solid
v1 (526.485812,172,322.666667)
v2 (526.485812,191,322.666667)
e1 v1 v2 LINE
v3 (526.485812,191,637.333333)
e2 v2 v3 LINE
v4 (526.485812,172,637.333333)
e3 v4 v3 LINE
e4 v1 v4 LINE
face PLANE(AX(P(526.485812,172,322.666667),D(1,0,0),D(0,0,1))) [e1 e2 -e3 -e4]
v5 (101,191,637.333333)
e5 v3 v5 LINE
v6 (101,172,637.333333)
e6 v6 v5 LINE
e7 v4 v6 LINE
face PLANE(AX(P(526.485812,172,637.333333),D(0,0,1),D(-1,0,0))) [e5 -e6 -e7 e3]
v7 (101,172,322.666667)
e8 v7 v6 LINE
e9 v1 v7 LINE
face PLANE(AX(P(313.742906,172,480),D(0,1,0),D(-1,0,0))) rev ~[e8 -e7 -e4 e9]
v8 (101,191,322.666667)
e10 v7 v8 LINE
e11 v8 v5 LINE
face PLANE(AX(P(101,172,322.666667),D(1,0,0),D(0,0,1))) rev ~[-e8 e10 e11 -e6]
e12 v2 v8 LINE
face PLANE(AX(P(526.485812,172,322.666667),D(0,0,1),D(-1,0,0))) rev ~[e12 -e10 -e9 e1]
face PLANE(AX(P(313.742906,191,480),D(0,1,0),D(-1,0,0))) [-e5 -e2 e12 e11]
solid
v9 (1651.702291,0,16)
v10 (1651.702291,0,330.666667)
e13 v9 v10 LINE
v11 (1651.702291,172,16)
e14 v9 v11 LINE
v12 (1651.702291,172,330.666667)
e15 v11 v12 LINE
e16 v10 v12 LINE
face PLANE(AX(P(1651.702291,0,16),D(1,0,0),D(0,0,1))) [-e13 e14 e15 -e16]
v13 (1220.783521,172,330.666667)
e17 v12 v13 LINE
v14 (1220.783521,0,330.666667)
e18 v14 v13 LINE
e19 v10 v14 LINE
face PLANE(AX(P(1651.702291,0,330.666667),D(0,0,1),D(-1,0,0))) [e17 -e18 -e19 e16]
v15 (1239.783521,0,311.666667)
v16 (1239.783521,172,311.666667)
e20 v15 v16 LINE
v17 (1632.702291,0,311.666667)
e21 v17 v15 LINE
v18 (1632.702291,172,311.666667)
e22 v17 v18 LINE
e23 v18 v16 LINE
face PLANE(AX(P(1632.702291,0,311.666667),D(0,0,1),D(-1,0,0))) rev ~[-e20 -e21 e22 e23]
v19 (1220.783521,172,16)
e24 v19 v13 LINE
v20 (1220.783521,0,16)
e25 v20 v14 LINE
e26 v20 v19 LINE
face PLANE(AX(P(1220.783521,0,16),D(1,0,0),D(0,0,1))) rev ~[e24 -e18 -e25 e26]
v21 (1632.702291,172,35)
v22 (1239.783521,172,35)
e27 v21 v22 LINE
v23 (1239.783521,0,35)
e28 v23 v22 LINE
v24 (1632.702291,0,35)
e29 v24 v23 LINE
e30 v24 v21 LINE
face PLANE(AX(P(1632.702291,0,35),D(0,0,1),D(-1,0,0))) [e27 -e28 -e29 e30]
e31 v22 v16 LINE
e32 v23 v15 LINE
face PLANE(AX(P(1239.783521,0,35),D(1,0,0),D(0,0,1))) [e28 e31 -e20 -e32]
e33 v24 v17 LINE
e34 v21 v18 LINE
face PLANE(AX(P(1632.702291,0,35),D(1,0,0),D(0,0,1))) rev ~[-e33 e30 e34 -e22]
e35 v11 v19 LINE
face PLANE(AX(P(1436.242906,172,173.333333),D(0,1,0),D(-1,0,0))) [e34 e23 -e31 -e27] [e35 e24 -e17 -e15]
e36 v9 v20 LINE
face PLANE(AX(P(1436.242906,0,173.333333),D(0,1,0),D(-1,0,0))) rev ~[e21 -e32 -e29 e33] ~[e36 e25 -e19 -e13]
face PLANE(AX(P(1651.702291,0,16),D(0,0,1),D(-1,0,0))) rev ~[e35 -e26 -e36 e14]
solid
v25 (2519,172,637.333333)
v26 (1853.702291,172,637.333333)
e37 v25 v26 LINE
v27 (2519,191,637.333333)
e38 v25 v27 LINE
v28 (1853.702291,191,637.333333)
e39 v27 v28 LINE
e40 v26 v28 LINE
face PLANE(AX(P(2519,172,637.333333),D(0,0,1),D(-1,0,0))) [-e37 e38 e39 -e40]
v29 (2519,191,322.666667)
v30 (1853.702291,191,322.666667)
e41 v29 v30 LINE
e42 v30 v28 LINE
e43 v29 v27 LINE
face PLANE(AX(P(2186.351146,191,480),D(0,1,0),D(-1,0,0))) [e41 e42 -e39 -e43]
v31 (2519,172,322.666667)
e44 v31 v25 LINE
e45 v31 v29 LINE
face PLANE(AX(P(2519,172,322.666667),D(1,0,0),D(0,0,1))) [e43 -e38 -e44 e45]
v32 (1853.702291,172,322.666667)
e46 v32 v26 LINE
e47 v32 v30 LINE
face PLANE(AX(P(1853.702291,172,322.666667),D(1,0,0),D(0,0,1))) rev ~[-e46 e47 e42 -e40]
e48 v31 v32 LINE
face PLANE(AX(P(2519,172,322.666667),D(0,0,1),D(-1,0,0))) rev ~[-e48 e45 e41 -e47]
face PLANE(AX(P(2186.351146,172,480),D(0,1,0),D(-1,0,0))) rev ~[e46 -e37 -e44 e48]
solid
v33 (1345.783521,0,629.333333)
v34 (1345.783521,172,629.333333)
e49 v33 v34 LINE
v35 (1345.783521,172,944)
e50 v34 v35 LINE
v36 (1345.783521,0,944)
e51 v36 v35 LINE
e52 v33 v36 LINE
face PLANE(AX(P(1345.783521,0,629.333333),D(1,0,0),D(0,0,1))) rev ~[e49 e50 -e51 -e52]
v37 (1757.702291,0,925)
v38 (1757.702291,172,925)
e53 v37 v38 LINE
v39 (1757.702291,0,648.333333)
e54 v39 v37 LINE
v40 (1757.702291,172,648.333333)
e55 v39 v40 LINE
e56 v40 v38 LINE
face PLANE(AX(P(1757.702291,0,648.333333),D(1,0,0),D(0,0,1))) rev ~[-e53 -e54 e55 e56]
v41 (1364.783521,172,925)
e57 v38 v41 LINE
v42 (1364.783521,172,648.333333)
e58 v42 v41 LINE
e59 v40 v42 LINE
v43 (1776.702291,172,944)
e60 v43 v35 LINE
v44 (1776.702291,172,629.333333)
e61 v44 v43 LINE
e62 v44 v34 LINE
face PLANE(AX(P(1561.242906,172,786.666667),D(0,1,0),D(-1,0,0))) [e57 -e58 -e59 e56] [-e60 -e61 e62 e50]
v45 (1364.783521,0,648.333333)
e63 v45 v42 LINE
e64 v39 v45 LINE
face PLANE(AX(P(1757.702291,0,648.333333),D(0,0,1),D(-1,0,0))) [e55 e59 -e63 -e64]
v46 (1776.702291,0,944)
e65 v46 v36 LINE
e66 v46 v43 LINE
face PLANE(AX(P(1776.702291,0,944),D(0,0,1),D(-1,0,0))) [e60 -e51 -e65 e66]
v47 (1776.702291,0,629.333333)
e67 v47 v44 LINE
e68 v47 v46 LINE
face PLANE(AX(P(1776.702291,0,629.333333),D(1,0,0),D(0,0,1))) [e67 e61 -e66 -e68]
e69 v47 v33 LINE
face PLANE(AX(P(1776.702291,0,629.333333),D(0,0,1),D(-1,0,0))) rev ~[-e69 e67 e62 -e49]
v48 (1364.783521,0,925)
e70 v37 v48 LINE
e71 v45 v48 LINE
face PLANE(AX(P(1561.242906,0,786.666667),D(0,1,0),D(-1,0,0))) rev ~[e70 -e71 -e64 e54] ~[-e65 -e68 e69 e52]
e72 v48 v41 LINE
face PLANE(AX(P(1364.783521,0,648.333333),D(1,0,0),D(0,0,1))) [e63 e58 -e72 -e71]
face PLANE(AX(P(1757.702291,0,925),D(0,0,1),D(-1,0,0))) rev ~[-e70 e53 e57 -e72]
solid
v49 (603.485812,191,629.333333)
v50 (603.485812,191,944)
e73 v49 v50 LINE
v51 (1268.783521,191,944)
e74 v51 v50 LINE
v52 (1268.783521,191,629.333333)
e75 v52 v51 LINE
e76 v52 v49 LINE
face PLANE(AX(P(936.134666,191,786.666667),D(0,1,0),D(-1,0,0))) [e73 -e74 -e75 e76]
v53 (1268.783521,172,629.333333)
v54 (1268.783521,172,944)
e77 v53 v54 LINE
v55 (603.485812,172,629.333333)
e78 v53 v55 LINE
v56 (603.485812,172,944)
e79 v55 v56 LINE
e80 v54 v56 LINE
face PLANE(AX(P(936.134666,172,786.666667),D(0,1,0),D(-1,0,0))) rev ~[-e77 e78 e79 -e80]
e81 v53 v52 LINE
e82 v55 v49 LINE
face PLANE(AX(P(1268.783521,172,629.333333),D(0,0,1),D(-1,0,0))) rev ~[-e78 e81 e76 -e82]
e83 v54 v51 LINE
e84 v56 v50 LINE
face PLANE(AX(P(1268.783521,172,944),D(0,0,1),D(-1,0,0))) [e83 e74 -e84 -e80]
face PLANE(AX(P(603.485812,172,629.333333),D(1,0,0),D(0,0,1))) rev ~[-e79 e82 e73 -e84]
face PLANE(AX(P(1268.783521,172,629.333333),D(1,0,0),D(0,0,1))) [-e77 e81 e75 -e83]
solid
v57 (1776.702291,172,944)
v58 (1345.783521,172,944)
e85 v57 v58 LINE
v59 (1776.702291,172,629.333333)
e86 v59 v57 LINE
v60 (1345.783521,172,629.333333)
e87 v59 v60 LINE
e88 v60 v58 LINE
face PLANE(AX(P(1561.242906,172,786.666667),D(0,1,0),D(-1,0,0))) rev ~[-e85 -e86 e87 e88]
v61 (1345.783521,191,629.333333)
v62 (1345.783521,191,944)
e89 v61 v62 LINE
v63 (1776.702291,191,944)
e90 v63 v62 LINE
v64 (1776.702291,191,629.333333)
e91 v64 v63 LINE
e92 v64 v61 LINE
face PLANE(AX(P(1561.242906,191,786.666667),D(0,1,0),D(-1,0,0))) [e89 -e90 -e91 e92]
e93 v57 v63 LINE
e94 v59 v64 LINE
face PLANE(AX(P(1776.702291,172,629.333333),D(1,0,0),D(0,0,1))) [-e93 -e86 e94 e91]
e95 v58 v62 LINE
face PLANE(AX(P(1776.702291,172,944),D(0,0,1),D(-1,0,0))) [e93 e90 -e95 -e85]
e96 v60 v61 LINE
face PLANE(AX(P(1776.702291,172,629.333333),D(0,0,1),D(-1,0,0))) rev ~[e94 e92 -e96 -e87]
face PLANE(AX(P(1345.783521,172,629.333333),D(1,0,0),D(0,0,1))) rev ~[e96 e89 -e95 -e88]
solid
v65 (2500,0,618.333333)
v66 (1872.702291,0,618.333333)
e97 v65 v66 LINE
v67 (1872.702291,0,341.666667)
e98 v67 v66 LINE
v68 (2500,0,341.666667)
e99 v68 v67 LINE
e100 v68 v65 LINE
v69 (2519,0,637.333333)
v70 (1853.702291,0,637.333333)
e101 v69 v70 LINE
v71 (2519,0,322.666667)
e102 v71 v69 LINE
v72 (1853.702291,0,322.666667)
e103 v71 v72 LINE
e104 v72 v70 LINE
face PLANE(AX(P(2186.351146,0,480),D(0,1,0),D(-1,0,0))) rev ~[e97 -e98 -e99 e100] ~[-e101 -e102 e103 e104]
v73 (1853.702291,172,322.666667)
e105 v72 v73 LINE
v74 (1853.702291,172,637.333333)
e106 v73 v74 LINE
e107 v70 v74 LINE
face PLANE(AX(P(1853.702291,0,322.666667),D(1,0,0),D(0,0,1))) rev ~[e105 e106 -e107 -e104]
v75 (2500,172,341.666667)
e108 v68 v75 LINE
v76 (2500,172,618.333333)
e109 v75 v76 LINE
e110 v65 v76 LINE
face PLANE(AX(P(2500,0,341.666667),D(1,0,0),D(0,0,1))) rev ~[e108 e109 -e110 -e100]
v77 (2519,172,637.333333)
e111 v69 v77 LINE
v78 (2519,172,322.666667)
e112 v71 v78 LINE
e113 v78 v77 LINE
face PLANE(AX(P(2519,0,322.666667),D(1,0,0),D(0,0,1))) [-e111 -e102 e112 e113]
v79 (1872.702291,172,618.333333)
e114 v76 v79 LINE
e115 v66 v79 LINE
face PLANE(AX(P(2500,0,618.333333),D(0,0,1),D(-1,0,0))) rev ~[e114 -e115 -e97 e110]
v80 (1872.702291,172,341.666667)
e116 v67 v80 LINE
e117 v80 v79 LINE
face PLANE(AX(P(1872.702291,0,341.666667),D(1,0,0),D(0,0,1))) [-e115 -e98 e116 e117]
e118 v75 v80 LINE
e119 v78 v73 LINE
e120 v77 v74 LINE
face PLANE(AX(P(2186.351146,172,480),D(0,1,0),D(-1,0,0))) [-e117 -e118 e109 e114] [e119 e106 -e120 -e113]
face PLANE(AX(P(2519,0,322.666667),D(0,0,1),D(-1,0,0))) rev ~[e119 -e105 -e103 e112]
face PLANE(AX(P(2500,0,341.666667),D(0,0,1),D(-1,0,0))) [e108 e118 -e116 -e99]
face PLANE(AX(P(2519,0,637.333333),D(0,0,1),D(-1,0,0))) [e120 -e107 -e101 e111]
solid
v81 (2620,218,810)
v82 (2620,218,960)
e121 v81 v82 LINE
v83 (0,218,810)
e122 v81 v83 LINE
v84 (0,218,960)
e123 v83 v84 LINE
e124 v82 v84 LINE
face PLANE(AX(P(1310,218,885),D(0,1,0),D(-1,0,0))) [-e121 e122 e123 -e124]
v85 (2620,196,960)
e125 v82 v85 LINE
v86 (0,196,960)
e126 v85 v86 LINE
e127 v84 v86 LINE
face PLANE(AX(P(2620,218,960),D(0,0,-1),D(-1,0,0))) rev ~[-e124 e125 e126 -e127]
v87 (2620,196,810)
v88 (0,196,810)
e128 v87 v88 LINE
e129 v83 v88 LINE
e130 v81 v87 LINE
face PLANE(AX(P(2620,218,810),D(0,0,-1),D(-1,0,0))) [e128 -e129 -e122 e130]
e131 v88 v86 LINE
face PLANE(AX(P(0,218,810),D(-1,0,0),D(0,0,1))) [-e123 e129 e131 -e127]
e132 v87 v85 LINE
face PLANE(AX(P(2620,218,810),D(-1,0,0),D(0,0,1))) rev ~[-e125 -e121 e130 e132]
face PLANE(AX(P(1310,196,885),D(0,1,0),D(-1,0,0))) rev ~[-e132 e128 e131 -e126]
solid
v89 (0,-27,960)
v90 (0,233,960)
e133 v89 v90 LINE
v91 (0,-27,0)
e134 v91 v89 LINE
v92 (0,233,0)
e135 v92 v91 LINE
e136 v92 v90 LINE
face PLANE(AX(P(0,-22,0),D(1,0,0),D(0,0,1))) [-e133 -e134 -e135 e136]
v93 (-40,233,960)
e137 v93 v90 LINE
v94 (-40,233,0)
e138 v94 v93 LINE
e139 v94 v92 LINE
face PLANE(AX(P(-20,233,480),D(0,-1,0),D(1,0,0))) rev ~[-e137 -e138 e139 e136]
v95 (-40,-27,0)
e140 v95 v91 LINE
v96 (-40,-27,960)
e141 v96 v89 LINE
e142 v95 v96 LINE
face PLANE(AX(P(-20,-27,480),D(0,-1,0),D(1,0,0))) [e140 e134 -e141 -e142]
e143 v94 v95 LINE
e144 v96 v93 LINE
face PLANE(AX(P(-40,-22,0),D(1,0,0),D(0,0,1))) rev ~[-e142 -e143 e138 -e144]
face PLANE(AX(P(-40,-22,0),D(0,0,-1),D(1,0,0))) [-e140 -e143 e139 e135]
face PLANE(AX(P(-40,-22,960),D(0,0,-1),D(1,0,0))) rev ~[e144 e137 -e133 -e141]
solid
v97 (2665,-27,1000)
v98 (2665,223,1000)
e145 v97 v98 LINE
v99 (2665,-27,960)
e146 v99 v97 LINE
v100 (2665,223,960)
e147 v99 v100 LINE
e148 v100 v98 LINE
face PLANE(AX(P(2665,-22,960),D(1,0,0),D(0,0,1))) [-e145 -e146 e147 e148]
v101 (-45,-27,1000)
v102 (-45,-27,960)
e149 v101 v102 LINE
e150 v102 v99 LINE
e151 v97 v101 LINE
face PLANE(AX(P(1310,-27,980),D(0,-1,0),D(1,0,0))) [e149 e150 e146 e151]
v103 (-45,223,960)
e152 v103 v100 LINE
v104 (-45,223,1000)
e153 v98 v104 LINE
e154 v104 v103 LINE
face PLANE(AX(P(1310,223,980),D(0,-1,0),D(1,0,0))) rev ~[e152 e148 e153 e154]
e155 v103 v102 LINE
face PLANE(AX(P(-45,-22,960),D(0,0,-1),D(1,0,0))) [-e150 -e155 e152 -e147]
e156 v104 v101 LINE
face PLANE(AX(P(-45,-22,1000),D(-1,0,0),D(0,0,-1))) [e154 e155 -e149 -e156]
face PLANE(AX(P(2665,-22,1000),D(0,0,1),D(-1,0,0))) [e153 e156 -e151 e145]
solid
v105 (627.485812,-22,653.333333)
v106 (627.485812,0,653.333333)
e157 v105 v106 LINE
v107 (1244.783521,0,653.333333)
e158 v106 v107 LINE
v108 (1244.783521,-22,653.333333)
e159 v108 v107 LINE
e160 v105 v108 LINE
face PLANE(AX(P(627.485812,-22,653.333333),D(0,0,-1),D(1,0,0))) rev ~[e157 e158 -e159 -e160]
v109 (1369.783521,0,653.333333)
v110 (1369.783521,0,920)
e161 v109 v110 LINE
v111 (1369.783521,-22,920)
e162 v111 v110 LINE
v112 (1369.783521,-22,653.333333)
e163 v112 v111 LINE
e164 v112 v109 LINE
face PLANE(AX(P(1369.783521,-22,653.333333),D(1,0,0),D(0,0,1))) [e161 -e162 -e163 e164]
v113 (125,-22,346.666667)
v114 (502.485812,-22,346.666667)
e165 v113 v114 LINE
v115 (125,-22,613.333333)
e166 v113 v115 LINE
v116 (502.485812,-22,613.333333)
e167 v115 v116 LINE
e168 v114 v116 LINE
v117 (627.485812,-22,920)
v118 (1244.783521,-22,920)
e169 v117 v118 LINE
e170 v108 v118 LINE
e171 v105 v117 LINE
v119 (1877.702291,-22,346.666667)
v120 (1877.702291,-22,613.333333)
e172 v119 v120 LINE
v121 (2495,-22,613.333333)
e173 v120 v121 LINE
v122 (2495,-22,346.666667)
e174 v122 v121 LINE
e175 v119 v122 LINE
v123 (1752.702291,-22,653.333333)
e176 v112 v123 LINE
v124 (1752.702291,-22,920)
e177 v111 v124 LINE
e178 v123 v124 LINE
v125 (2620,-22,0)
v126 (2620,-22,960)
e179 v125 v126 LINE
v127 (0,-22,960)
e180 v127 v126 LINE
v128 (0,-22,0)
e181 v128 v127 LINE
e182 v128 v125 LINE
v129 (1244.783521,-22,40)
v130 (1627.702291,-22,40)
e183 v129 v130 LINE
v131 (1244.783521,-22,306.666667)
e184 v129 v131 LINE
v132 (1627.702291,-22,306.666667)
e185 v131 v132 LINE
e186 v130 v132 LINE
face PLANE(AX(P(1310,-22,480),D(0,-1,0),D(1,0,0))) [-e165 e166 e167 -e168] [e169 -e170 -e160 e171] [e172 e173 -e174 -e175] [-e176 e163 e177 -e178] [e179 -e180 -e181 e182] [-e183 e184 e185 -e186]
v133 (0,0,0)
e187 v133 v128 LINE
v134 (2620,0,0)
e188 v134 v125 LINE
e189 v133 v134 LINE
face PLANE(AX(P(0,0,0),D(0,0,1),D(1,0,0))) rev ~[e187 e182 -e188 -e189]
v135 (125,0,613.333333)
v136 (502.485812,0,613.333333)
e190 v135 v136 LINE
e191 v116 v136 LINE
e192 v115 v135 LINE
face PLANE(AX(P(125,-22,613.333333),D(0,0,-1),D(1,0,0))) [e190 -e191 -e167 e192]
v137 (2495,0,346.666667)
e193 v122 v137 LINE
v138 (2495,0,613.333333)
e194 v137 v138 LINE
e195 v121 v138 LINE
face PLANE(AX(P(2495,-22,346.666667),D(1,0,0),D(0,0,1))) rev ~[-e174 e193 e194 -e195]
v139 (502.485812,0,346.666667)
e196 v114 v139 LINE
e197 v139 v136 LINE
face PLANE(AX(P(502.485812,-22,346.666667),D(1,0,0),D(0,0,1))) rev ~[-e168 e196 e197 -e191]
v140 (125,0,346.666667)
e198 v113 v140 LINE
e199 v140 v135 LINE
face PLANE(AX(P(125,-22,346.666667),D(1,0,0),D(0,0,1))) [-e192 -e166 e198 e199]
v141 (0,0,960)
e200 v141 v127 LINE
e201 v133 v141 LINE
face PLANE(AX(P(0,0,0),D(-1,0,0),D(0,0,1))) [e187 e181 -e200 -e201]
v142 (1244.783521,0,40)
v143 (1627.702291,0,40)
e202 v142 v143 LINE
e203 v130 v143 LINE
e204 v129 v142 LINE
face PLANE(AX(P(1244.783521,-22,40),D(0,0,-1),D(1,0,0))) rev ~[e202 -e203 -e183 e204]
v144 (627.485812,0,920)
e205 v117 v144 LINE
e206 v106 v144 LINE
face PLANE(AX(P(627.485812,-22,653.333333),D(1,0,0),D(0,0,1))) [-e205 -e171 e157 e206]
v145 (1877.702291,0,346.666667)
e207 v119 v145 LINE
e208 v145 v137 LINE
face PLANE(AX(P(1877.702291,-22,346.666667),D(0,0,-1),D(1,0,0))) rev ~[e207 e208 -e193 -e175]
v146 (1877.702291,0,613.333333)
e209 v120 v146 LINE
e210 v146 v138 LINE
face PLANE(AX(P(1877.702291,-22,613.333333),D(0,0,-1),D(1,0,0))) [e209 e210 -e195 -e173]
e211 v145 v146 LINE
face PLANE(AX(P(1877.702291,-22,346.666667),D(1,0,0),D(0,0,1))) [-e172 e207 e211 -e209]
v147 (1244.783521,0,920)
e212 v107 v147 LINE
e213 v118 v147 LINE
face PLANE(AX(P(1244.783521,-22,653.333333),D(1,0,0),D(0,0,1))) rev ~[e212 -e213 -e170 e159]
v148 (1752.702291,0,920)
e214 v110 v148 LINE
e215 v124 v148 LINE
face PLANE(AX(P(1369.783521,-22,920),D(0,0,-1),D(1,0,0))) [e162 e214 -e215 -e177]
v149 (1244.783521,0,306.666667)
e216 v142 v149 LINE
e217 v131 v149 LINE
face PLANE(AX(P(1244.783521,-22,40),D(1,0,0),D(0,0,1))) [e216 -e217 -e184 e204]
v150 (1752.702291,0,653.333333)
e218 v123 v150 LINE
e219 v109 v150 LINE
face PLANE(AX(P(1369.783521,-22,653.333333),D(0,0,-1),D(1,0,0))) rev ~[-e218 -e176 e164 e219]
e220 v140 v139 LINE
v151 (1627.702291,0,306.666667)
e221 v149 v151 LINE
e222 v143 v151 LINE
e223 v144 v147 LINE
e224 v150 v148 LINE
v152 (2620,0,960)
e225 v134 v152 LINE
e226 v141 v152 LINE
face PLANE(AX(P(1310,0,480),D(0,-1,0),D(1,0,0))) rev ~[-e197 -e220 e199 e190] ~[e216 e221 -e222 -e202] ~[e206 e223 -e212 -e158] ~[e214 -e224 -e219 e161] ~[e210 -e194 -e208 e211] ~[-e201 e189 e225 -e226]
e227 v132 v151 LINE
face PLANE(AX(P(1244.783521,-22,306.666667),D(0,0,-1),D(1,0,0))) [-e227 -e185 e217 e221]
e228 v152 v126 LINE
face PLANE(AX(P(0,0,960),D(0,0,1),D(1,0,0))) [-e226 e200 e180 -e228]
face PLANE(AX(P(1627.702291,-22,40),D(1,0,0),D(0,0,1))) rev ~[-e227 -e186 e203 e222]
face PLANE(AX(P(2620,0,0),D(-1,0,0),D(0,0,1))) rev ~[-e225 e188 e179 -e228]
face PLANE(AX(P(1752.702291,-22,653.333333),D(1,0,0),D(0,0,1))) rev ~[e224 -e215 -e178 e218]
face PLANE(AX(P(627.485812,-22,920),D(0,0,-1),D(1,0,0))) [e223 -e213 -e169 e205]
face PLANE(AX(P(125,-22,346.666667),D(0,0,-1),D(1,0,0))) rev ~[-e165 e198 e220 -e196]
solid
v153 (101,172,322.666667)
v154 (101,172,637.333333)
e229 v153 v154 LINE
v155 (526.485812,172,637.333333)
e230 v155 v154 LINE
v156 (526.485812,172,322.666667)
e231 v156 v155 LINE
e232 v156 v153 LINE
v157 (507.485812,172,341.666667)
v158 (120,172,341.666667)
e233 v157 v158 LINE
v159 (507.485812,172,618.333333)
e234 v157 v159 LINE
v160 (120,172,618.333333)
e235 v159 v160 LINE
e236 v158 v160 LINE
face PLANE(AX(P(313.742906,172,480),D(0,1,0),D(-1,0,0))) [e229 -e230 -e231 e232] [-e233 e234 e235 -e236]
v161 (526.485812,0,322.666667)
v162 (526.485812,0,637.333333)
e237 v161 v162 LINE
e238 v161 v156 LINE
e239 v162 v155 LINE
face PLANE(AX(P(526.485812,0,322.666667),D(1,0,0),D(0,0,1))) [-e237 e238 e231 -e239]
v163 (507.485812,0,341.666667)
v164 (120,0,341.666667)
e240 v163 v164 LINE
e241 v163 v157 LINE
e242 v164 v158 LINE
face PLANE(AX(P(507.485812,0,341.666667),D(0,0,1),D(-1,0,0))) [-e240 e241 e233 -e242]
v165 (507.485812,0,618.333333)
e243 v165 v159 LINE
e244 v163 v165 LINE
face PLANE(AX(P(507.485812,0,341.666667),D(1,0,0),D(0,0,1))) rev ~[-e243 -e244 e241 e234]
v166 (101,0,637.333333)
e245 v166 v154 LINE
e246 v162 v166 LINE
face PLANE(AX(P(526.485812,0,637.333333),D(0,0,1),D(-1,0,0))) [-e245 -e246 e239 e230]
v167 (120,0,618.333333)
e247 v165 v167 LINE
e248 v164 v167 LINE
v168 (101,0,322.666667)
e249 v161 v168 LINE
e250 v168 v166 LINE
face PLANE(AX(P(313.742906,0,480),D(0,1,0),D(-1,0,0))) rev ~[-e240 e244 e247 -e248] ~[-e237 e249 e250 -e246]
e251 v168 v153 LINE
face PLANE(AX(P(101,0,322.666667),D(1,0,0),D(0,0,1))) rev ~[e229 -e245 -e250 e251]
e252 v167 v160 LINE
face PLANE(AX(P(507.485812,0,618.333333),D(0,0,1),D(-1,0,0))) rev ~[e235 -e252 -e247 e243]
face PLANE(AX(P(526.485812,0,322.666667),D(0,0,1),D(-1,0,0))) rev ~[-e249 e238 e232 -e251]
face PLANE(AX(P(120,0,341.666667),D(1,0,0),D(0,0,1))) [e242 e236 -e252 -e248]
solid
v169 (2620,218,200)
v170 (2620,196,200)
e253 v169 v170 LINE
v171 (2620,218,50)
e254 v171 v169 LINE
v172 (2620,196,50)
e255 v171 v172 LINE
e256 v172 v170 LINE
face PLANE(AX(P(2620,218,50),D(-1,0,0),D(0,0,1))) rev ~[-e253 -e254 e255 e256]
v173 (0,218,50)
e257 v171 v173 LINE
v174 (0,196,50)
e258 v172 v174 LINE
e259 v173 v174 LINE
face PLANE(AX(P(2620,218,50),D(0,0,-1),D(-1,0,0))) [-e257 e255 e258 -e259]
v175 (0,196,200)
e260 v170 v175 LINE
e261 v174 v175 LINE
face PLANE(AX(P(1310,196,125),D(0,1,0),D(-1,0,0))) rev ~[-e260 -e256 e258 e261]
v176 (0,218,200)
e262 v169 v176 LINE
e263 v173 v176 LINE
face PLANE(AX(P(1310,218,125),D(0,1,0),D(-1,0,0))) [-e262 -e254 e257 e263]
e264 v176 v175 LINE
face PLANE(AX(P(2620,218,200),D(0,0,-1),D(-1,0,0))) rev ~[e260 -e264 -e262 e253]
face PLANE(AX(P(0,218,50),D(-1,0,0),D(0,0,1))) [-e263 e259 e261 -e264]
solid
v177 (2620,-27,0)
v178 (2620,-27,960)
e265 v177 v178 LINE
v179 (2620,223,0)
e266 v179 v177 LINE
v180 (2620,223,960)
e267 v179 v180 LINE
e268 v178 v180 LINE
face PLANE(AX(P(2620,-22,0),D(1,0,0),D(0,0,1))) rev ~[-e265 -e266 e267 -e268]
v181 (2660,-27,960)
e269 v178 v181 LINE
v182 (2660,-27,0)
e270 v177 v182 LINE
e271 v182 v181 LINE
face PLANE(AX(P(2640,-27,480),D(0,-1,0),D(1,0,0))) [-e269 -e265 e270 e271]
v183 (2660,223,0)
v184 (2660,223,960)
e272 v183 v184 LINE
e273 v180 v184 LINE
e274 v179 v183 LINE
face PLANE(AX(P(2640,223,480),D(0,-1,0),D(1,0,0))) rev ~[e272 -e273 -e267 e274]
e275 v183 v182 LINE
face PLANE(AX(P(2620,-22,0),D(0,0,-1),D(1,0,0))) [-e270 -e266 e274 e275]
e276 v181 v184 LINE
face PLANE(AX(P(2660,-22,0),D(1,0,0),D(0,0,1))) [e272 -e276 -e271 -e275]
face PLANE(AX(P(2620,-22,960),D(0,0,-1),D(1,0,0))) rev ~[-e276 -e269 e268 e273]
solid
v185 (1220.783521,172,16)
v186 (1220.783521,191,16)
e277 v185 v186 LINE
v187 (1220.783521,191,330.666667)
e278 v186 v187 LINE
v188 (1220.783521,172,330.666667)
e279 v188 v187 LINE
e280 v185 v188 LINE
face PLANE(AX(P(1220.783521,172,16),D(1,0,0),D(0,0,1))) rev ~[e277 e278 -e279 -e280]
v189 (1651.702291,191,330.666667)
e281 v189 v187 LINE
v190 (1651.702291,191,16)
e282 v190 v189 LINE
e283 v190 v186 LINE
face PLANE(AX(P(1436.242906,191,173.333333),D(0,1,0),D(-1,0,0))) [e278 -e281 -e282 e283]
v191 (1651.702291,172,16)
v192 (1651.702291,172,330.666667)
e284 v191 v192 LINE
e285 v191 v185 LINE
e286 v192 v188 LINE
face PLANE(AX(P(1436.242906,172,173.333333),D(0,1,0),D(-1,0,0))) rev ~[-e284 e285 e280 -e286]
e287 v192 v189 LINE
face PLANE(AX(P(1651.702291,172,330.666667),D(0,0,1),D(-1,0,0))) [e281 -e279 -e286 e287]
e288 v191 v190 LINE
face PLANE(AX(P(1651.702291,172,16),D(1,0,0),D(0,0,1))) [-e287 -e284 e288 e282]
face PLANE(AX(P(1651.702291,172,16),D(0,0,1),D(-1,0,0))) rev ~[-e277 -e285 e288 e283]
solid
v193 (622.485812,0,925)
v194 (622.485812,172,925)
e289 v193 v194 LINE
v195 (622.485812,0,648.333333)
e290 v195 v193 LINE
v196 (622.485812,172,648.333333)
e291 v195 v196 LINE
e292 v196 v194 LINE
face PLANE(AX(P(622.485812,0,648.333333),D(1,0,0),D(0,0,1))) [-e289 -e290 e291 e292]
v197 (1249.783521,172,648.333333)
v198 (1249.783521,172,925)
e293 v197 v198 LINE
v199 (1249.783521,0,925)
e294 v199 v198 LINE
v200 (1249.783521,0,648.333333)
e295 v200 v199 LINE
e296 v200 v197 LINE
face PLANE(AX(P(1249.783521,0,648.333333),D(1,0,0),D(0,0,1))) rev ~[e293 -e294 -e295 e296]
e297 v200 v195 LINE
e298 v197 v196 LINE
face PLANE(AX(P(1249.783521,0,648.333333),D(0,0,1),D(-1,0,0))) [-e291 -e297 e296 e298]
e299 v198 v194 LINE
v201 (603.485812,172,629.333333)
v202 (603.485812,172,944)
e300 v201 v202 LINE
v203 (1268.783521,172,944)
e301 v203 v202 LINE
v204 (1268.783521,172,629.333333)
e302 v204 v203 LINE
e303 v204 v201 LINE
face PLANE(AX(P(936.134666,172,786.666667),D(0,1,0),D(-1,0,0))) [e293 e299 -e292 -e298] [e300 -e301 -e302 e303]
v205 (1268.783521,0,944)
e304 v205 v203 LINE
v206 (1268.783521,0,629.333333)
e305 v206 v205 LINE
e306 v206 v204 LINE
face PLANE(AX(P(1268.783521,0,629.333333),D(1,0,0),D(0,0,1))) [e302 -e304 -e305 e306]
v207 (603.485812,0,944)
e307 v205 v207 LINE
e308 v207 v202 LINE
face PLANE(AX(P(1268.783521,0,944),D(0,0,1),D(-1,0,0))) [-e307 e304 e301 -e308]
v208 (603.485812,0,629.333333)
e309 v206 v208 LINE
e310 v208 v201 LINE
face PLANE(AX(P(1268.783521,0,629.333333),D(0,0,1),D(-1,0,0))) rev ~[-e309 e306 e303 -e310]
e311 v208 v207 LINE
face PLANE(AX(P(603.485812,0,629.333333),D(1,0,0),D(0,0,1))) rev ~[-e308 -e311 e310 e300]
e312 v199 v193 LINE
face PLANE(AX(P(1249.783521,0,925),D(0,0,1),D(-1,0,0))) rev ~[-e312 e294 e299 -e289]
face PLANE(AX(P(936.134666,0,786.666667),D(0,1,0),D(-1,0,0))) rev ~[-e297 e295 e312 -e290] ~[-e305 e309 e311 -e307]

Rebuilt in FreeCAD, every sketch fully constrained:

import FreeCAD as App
import Part
import Sketcher


def add_polygon(sketch, points):
    """Adds a closed chain of lines whose ends are joined by coincident constraints."""
    first, n = sketch.GeometryCount, len(points)
    for a, b in zip(points, points[1:] + points[:1]):
        sketch.addGeometry(Part.LineSegment(App.Vector(*a, 0), App.Vector(*b, 0)), False)
    for i in range(n):
        sketch.addConstraint(Sketcher.Constraint("Coincident", first + i, 2, first + (i + 1) % n, 1))

doc = App.newDocument("Part")
params = doc.addObject("Spreadsheet::Sheet", "Params")
for row, (alias, value) in enumerate([
    ("sketch1_width", "2620 mm"),
    ("sketch1_height", "960 mm"),
    ("pad1_length", "22 mm"),
    ("sketch3_width", "40 mm"),
    ("sketch3_height", "960 mm"),
    ("pad2_length", "5 mm"),
    ("pad2_length2", "255 mm"),
    ("sketch4_width", "40 mm"),
    ("sketch4_height", "960 mm"),
    ("pad3_length", "5 mm"),
    ("pad3_length2", "245 mm"),
    ("sketch5_width", "2710 mm"),
    ("sketch5_height", "40 mm"),
    ("pad4_length", "5 mm"),
    ("pad4_length2", "245 mm"),
    ("pad5_length", "172 mm"),
    ("pad6_length", "172 mm"),
    ("pad7_length", "172 mm"),
    ("pad8_length", "172 mm"),
    ("pad9_length", "172 mm"),
    ("pad10_length", "19 mm"),
    ("pad11_length", "19 mm"),
    ("pad12_length", "19 mm"),
    ("pad13_length", "19 mm"),
    ("pad14_length", "19 mm"),
    ("sketch16_width", "2620 mm"),
    ("sketch16_height", "150 mm"),
    ("pad15_length", "22 mm"),
    ("sketch17_width", "2620 mm"),
    ("sketch17_height", "150 mm"),
    ("pad16_length", "22 mm"),
], start=1):
    params.set(f"A{row}", alias)
    params.set(f"B{row}", "=" + value)
    params.setAlias(f"B{row}", alias)

body = doc.addObject("PartDesign::Body", "Body")

# Sketch on XZ plane
sketch1 = body.newObject("Sketcher::SketchObject", "Sketch")
sketch1.AttachmentSupport = (doc.getObject("XZ_Plane"), [""])
sketch1.MapMode = "FlatFace"
add_polygon(sketch1, [(0, 960), (0, 0), (2620, 0), (2620, 960)])  # lines 0-3
sketch1.addConstraint(Sketcher.Constraint("Vertical", 0))
sketch1.addConstraint(Sketcher.Constraint("Horizontal", 1))
sketch1.addConstraint(Sketcher.Constraint("Vertical", 2))
sketch1.addConstraint(Sketcher.Constraint("Horizontal", 3))
sketch1.addConstraint(Sketcher.Constraint("Coincident", 0, 2, -1, 1))
sketch1.addConstraint(Sketcher.Constraint("DistanceX", 1, 1, 1, 2, 2620.0))
sketch1.addConstraint(Sketcher.Constraint("DistanceY", 0, 2, 0, 1, 960.0))
sketch1.setExpression("Constraints[9]", "Params.sketch1_width")
sketch1.setExpression("Constraints[10]", "Params.sketch1_height")
pad1 = body.newObject("PartDesign::Pad", "Pad")
pad1.Profile = sketch1
pad1.setExpression("Length", "Params.pad1_length")

# Sketch on XZ plane
sketch2 = body.newObject("Sketcher::SketchObject", "Sketch001")
sketch2.AttachmentSupport = (doc.getObject("XZ_Plane"), [""])
sketch2.MapMode = "FlatFace"
sketch2.AttachmentOffset = App.Placement(App.Vector(0, 0, 22), App.Rotation())
add_polygon(sketch2, [(125, 613.333333), (125, 346.666667), (502.485812, 346.666667), (502.485812, 613.333333)])  # lines 0-3
add_polygon(sketch2, [(627.485812, 920), (627.485812, 653.333333), (1244.783521, 653.333333), (1244.783521, 920)])  # lines 4-7
add_polygon(sketch2, [(1369.783521, 920), (1369.783521, 653.333333), (1752.702291, 653.333333), (1752.702291, 920)])  # lines 8-11
add_polygon(sketch2, [(1244.783521, 306.666667), (1244.783521, 40), (1627.702291, 40), (1627.702291, 306.666667)])  # lines 12-15
add_polygon(sketch2, [(1877.702291, 613.333333), (1877.702291, 346.666667), (2495, 346.666667), (2495, 613.333333)])  # lines 16-19
sketch2.addConstraint(Sketcher.Constraint("Vertical", 0))
sketch2.addConstraint(Sketcher.Constraint("Horizontal", 1))
sketch2.addConstraint(Sketcher.Constraint("Vertical", 2))
sketch2.addConstraint(Sketcher.Constraint("Horizontal", 3))
sketch2.addConstraint(Sketcher.Constraint("Vertical", 4))
sketch2.addConstraint(Sketcher.Constraint("Horizontal", 5))
sketch2.addConstraint(Sketcher.Constraint("Vertical", 6))
sketch2.addConstraint(Sketcher.Constraint("Horizontal", 7))
sketch2.addConstraint(Sketcher.Constraint("Vertical", 8))
sketch2.addConstraint(Sketcher.Constraint("Horizontal", 9))
sketch2.addConstraint(Sketcher.Constraint("Vertical", 10))
sketch2.addConstraint(Sketcher.Constraint("Horizontal", 11))
sketch2.addConstraint(Sketcher.Constraint("Vertical", 12))
sketch2.addConstraint(Sketcher.Constraint("Horizontal", 13))
sketch2.addConstraint(Sketcher.Constraint("Vertical", 14))
sketch2.addConstraint(Sketcher.Constraint("Horizontal", 15))
sketch2.addConstraint(Sketcher.Constraint("Vertical", 16))
sketch2.addConstraint(Sketcher.Constraint("Horizontal", 17))
sketch2.addConstraint(Sketcher.Constraint("Vertical", 18))
sketch2.addConstraint(Sketcher.Constraint("Horizontal", 19))
sketch2.addConstraint(Sketcher.Constraint("Horizontal", 5, 2, 8, 2))
sketch2.addConstraint(Sketcher.Constraint("Horizontal", 7, 2, 10, 2))
sketch2.addConstraint(Sketcher.Constraint("Horizontal", 1, 2, 16, 2))
sketch2.addConstraint(Sketcher.Constraint("Horizontal", 3, 2, 18, 2))
sketch2.addConstraint(Sketcher.Constraint("Vertical", 6, 2, 12, 2))
sketch2.addConstraint(Sketcher.Constraint("Equal", 11, 13))
sketch2.addConstraint(Sketcher.Constraint("Equal", 7, 17))
sketch2.addConstraint(Sketcher.Constraint("Equal", 2, 4))
sketch2.addConstraint(Sketcher.Constraint("Equal", 10, 12))
sketch2.addConstraint(Sketcher.Constraint("DistanceX", -1, 1, 0, 2, 125.0))
sketch2.addConstraint(Sketcher.Constraint("DistanceY", -1, 1, 6, 2, 920.0))
sketch2.addConstraint(Sketcher.Constraint("DistanceY", -1, 1, 12, 2, 40.0))
sketch2.addConstraint(Sketcher.Constraint("DistanceX", -1, 1, 17, 2, 2495.0))
sketch2.addConstraint(Sketcher.Constraint("DistanceX", 2, 2, 4, 2, 125.0))
sketch2.addConstraint(Sketcher.Constraint("DistanceY", 2, 2, 4, 2, 40.0))
sketch2.addConstraint(Sketcher.Constraint("DistanceX", 5, 2, 8, 2, 125.0))
sketch2.addConstraint(Sketcher.Constraint("DistanceX", 14, 2, 16, 2, 250.0))
sketch2.addConstraint(Sketcher.Constraint("DistanceY", 14, 2, 16, 2, 40.0))
sketch2.addConstraint(Sketcher.Constraint("DistanceX", 1, 1, 1, 2, 377.485812))
sketch2.addConstraint(Sketcher.Constraint("DistanceX", 5, 1, 5, 2, 617.297709))
pocket1 = body.newObject("PartDesign::Pocket", "Pocket")
pocket1.Profile = sketch2
pocket1.Type = "ThroughAll"
body2 = doc.addObject("PartDesign::Body", "Body001")

# Sketch on XZ plane
sketch3 = body2.newObject("Sketcher::SketchObject", "Sketch002")
sketch3.AttachmentSupport = (doc.getObject("XZ_Plane001"), [""])
sketch3.MapMode = "FlatFace"
sketch3.AttachmentOffset = App.Placement(App.Vector(0, 0, 22), App.Rotation())
add_polygon(sketch3, [(-40, 960), (-40, 0), (0, 0), (0, 960)])  # lines 0-3
sketch3.addConstraint(Sketcher.Constraint("Vertical", 0))
sketch3.addConstraint(Sketcher.Constraint("Horizontal", 1))
sketch3.addConstraint(Sketcher.Constraint("Vertical", 2))
sketch3.addConstraint(Sketcher.Constraint("Horizontal", 3))
sketch3.addConstraint(Sketcher.Constraint("Coincident", 1, 2, -1, 1))
sketch3.addConstraint(Sketcher.Constraint("DistanceX", 1, 1, 1, 2, 40.0))
sketch3.addConstraint(Sketcher.Constraint("DistanceY", 0, 2, 0, 1, 960.0))
sketch3.setExpression("Constraints[9]", "Params.sketch3_width")
sketch3.setExpression("Constraints[10]", "Params.sketch3_height")
pad2 = body2.newObject("PartDesign::Pad", "Pad001")
pad2.Profile = sketch3
pad2.Type = "TwoLengths"
pad2.setExpression("Length", "Params.pad2_length")
pad2.setExpression("Length2", "Params.pad2_length2")
body3 = doc.addObject("PartDesign::Body", "Body002")

# Sketch on XZ plane
sketch4 = body3.newObject("Sketcher::SketchObject", "Sketch003")
sketch4.AttachmentSupport = (doc.getObject("XZ_Plane002"), [""])
sketch4.MapMode = "FlatFace"
sketch4.AttachmentOffset = App.Placement(App.Vector(0, 0, 22), App.Rotation())
add_polygon(sketch4, [(2620, 960), (2620, 0), (2660, 0), (2660, 960)])  # lines 0-3
sketch4.addConstraint(Sketcher.Constraint("Vertical", 0))
sketch4.addConstraint(Sketcher.Constraint("Horizontal", 1))
sketch4.addConstraint(Sketcher.Constraint("Vertical", 2))
sketch4.addConstraint(Sketcher.Constraint("Horizontal", 3))
sketch4.addConstraint(Sketcher.Constraint("PointOnObject", 0, 2, -1))
sketch4.addConstraint(Sketcher.Constraint("DistanceX", 1, 1, 1, 2, 40.0))
sketch4.addConstraint(Sketcher.Constraint("DistanceY", 0, 2, 0, 1, 960.0))
sketch4.addConstraint(Sketcher.Constraint("DistanceX", -1, 1, 0, 2, 2620.0))
sketch4.setExpression("Constraints[9]", "Params.sketch4_width")
sketch4.setExpression("Constraints[10]", "Params.sketch4_height")
pad3 = body3.newObject("PartDesign::Pad", "Pad002")
pad3.Profile = sketch4
pad3.Type = "TwoLengths"
pad3.setExpression("Length", "Params.pad3_length")
pad3.setExpression("Length2", "Params.pad3_length2")
body4 = doc.addObject("PartDesign::Body", "Body003")

# Sketch on XZ plane
sketch5 = body4.newObject("Sketcher::SketchObject", "Sketch004")
sketch5.AttachmentSupport = (doc.getObject("XZ_Plane003"), [""])
sketch5.MapMode = "FlatFace"
sketch5.AttachmentOffset = App.Placement(App.Vector(0, 0, 22), App.Rotation())
add_polygon(sketch5, [(2665, 1000), (-45, 1000), (-45, 960), (2665, 960)])  # lines 0-3
sketch5.addConstraint(Sketcher.Constraint("Horizontal", 0))
sketch5.addConstraint(Sketcher.Constraint("Vertical", 1))
sketch5.addConstraint(Sketcher.Constraint("Horizontal", 2))
sketch5.addConstraint(Sketcher.Constraint("Vertical", 3))
sketch5.addConstraint(Sketcher.Constraint("DistanceX", 0, 2, 0, 1, 2710.0))
sketch5.addConstraint(Sketcher.Constraint("DistanceY", 1, 2, 1, 1, 40.0))
sketch5.addConstraint(Sketcher.Constraint("DistanceX", 0, 2, -1, 1, 45.0))
sketch5.addConstraint(Sketcher.Constraint("DistanceY", -1, 1, 0, 2, 1000.0))
sketch5.setExpression("Constraints[8]", "Params.sketch5_width")
sketch5.setExpression("Constraints[9]", "Params.sketch5_height")
pad4 = body4.newObject("PartDesign::Pad", "Pad003")
pad4.Profile = sketch5
pad4.Type = "TwoLengths"
pad4.setExpression("Length", "Params.pad4_length")
pad4.setExpression("Length2", "Params.pad4_length2")
body5 = doc.addObject("PartDesign::Body", "Body004")

# Sketch on XZ plane
sketch6 = body5.newObject("Sketcher::SketchObject", "Sketch005")
sketch6.AttachmentSupport = (doc.getObject("XZ_Plane004"), [""])
sketch6.MapMode = "FlatFace"
add_polygon(sketch6, [(2519, 637.333333), (2519, 322.666667), (1853.702291, 322.666667), (1853.702291, 637.333333)])  # lines 0-3
add_polygon(sketch6, [(1872.702291, 341.666667), (2500, 341.666667), (2500, 618.333333), (1872.702291, 618.333333)])  # lines 4-7
sketch6.addConstraint(Sketcher.Constraint("Vertical", 0))
sketch6.addConstraint(Sketcher.Constraint("Horizontal", 1))
sketch6.addConstraint(Sketcher.Constraint("Vertical", 2))
sketch6.addConstraint(Sketcher.Constraint("Horizontal", 3))
sketch6.addConstraint(Sketcher.Constraint("Horizontal", 4))
sketch6.addConstraint(Sketcher.Constraint("Vertical", 5))
sketch6.addConstraint(Sketcher.Constraint("Horizontal", 6))
sketch6.addConstraint(Sketcher.Constraint("Vertical", 7))
sketch6.addConstraint(Sketcher.Constraint("DistanceX", -1, 1, 0, 2, 2519.0))
sketch6.addConstraint(Sketcher.Constraint("DistanceX", -1, 1, 4, 2, 2500.0))
sketch6.addConstraint(Sketcher.Constraint("DistanceY", 0, 2, 4, 2, 19.0))
sketch6.addConstraint(Sketcher.Constraint("DistanceY", 5, 2, 3, 2, 19.0))
sketch6.addConstraint(Sketcher.Constraint("DistanceX", 2, 2, 6, 2, 19.0))
sketch6.addConstraint(Sketcher.Constraint("DistanceX", 1, 2, 1, 1, 665.297709))
sketch6.addConstraint(Sketcher.Constraint("DistanceY", 0, 2, 0, 1, 314.666667))
sketch6.addConstraint(Sketcher.Constraint("DistanceY", -1, 1, 0, 2, 322.666667))
pad5 = body5.newObject("PartDesign::Pad", "Pad004")
pad5.Profile = sketch6
pad5.setExpression("Length", "Params.pad5_length")
pad5.Reversed = True
body6 = doc.addObject("PartDesign::Body", "Body005")

# Sketch on XZ plane
sketch7 = body6.newObject("Sketcher::SketchObject", "Sketch006")
sketch7.AttachmentSupport = (doc.getObject("XZ_Plane005"), [""])
sketch7.MapMode = "FlatFace"
add_polygon(sketch7, [(1776.702291, 944), (1776.702291, 629.333333), (1345.783521, 629.333333), (1345.783521, 944)])  # lines 0-3
add_polygon(sketch7, [(1364.783521, 648.333333), (1757.702291, 648.333333), (1757.702291, 925), (1364.783521, 925)])  # lines 4-7
sketch7.addConstraint(Sketcher.Constraint("Vertical", 0))
sketch7.addConstraint(Sketcher.Constraint("Horizontal", 1))
sketch7.addConstraint(Sketcher.Constraint("Vertical", 2))
sketch7.addConstraint(Sketcher.Constraint("Horizontal", 3))
sketch7.addConstraint(Sketcher.Constraint("Horizontal", 4))
sketch7.addConstraint(Sketcher.Constraint("Vertical", 5))
sketch7.addConstraint(Sketcher.Constraint("Horizontal", 6))
sketch7.addConstraint(Sketcher.Constraint("Vertical", 7))
sketch7.addConstraint(Sketcher.Constraint("DistanceY", -1, 1, 2, 2, 944.0))
sketch7.addConstraint(Sketcher.Constraint("DistanceY", -1, 1, 5, 2, 925.0))
sketch7.addConstraint(Sketcher.Constraint("DistanceX", 4, 2, 0, 2, 19.0))
sketch7.addConstraint(Sketcher.Constraint("DistanceY", 0, 2, 4, 2, 19.0))
sketch7.addConstraint(Sketcher.Constraint("DistanceX", 2, 2, 6, 2, 19.0))
sketch7.addConstraint(Sketcher.Constraint("DistanceX", 1, 2, 1, 1, 430.91877))
sketch7.addConstraint(Sketcher.Constraint("DistanceY", 0, 2, 0, 1, 314.666667))
sketch7.addConstraint(Sketcher.Constraint("DistanceX", -1, 1, 0, 2, 1776.702291))
pad6 = body6.newObject("PartDesign::Pad", "Pad005")
pad6.Profile = sketch7
pad6.setExpression("Length", "Params.pad6_length")
pad6.Reversed = True
body7 = doc.addObject("PartDesign::Body", "Body006")

# Sketch on XZ plane
sketch8 = body7.newObject("Sketcher::SketchObject", "Sketch007")
sketch8.AttachmentSupport = (doc.getObject("XZ_Plane006"), [""])
sketch8.MapMode = "FlatFace"
add_polygon(sketch8, [(1268.783521, 944), (1268.783521, 629.333333), (603.485812, 629.333333), (603.485812, 944)])  # lines 0-3
add_polygon(sketch8, [(622.485812, 648.333333), (1249.783521, 648.333333), (1249.783521, 925), (622.485812, 925)])  # lines 4-7
sketch8.addConstraint(Sketcher.Constraint("Vertical", 0))
sketch8.addConstraint(Sketcher.Constraint("Horizontal", 1))
sketch8.addConstraint(Sketcher.Constraint("Vertical", 2))
sketch8.addConstraint(Sketcher.Constraint("Horizontal", 3))
sketch8.addConstraint(Sketcher.Constraint("Horizontal", 4))
sketch8.addConstraint(Sketcher.Constraint("Vertical", 5))
sketch8.addConstraint(Sketcher.Constraint("Horizontal", 6))
sketch8.addConstraint(Sketcher.Constraint("Vertical", 7))
sketch8.addConstraint(Sketcher.Constraint("DistanceY", -1, 1, 2, 2, 944.0))
sketch8.addConstraint(Sketcher.Constraint("DistanceY", -1, 1, 5, 2, 925.0))
sketch8.addConstraint(Sketcher.Constraint("DistanceX", 4, 2, 0, 2, 19.0))
sketch8.addConstraint(Sketcher.Constraint("DistanceY", 0, 2, 4, 2, 19.0))
sketch8.addConstraint(Sketcher.Constraint("DistanceX", 2, 2, 6, 2, 19.0))
sketch8.addConstraint(Sketcher.Constraint("DistanceX", 1, 2, 1, 1, 665.297709))
sketch8.addConstraint(Sketcher.Constraint("DistanceY", 0, 2, 0, 1, 314.666667))
sketch8.addConstraint(Sketcher.Constraint("DistanceX", -1, 1, 0, 2, 1268.783521))
pad7 = body7.newObject("PartDesign::Pad", "Pad006")
pad7.Profile = sketch8
pad7.setExpression("Length", "Params.pad7_length")
pad7.Reversed = True
body8 = doc.addObject("PartDesign::Body", "Body007")

# Sketch on XZ plane
sketch9 = body8.newObject("Sketcher::SketchObject", "Sketch008")
sketch9.AttachmentSupport = (doc.getObject("XZ_Plane007"), [""])
sketch9.MapMode = "FlatFace"
add_polygon(sketch9, [(526.485812, 637.333333), (526.485812, 322.666667), (101, 322.666667), (101, 637.333333)])  # lines 0-3
add_polygon(sketch9, [(120, 341.666667), (507.485812, 341.666667), (507.485812, 618.333333), (120, 618.333333)])  # lines 4-7
sketch9.addConstraint(Sketcher.Constraint("Vertical", 0))
sketch9.addConstraint(Sketcher.Constraint("Horizontal", 1))
sketch9.addConstraint(Sketcher.Constraint("Vertical", 2))
sketch9.addConstraint(Sketcher.Constraint("Horizontal", 3))
sketch9.addConstraint(Sketcher.Constraint("Horizontal", 4))
sketch9.addConstraint(Sketcher.Constraint("Vertical", 5))
sketch9.addConstraint(Sketcher.Constraint("Horizontal", 6))
sketch9.addConstraint(Sketcher.Constraint("Vertical", 7))
sketch9.addConstraint(Sketcher.Constraint("DistanceX", -1, 1, 1, 2, 101.0))
sketch9.addConstraint(Sketcher.Constraint("DistanceX", -1, 1, 6, 2, 120.0))
sketch9.addConstraint(Sketcher.Constraint("DistanceX", 4, 2, 0, 2, 19.0))
sketch9.addConstraint(Sketcher.Constraint("DistanceY", 0, 2, 4, 2, 19.0))
sketch9.addConstraint(Sketcher.Constraint("DistanceY", 5, 2, 3, 2, 19.0))
sketch9.addConstraint(Sketcher.Constraint("DistanceX", 1, 2, 1, 1, 425.485812))
sketch9.addConstraint(Sketcher.Constraint("DistanceY", 0, 2, 0, 1, 314.666667))
sketch9.addConstraint(Sketcher.Constraint("DistanceY", -1, 1, 0, 2, 322.666667))
pad8 = body8.newObject("PartDesign::Pad", "Pad007")
pad8.Profile = sketch9
pad8.setExpression("Length", "Params.pad8_length")
pad8.Reversed = True
body9 = doc.addObject("PartDesign::Body", "Body008")

# Sketch on XZ plane
sketch10 = body9.newObject("Sketcher::SketchObject", "Sketch009")
sketch10.AttachmentSupport = (doc.getObject("XZ_Plane008"), [""])
sketch10.MapMode = "FlatFace"
add_polygon(sketch10, [(1651.702291, 330.666667), (1651.702291, 16), (1220.783521, 16), (1220.783521, 330.666667)])  # lines 0-3
add_polygon(sketch10, [(1239.783521, 35), (1632.702291, 35), (1632.702291, 311.666667), (1239.783521, 311.666667)])  # lines 4-7
sketch10.addConstraint(Sketcher.Constraint("Vertical", 0))
sketch10.addConstraint(Sketcher.Constraint("Horizontal", 1))
sketch10.addConstraint(Sketcher.Constraint("Vertical", 2))
sketch10.addConstraint(Sketcher.Constraint("Horizontal", 3))
sketch10.addConstraint(Sketcher.Constraint("Horizontal", 4))
sketch10.addConstraint(Sketcher.Constraint("Vertical", 5))
sketch10.addConstraint(Sketcher.Constraint("Horizontal", 6))
sketch10.addConstraint(Sketcher.Constraint("Vertical", 7))
sketch10.addConstraint(Sketcher.Constraint("DistanceY", -1, 1, 0, 2, 16.0))
sketch10.addConstraint(Sketcher.Constraint("DistanceY", -1, 1, 4, 2, 35.0))
sketch10.addConstraint(Sketcher.Constraint("DistanceX", 4, 2, 0, 2, 19.0))
sketch10.addConstraint(Sketcher.Constraint("DistanceY", 5, 2, 3, 2, 19.0))
sketch10.addConstraint(Sketcher.Constraint("DistanceX", 2, 2, 6, 2, 19.0))
sketch10.addConstraint(Sketcher.Constraint("DistanceX", 1, 2, 1, 1, 430.91877))
sketch10.addConstraint(Sketcher.Constraint("DistanceY", 0, 2, 0, 1, 314.666667))
sketch10.addConstraint(Sketcher.Constraint("DistanceX", -1, 1, 0, 2, 1651.702291))
pad9 = body9.newObject("PartDesign::Pad", "Pad008")
pad9.Profile = sketch10
pad9.setExpression("Length", "Params.pad9_length")
pad9.Reversed = True
body10 = doc.addObject("PartDesign::Body", "Body009")

# Sketch on XZ plane
sketch11 = body10.newObject("Sketcher::SketchObject", "Sketch010")
sketch11.AttachmentSupport = (doc.getObject("XZ_Plane009"), [""])
sketch11.MapMode = "FlatFace"
sketch11.AttachmentOffset = App.Placement(App.Vector(0, 0, -172), App.Rotation())
add_polygon(sketch11, [(2519, 637.333333), (2519, 322.666667), (1853.702291, 322.666667), (1853.702291, 637.333333)])  # lines 0-3
sketch11.addConstraint(Sketcher.Constraint("Vertical", 0))
sketch11.addConstraint(Sketcher.Constraint("Horizontal", 1))
sketch11.addConstraint(Sketcher.Constraint("Vertical", 2))
sketch11.addConstraint(Sketcher.Constraint("Horizontal", 3))
sketch11.addConstraint(Sketcher.Constraint("DistanceX", -1, 1, 0, 2, 2519.0))
sketch11.addConstraint(Sketcher.Constraint("DistanceX", 1, 2, 1, 1, 665.297709))
sketch11.addConstraint(Sketcher.Constraint("DistanceY", 0, 2, 0, 1, 314.666667))
sketch11.addConstraint(Sketcher.Constraint("DistanceY", -1, 1, 0, 2, 322.666667))
pad10 = body10.newObject("PartDesign::Pad", "Pad009")
pad10.Profile = sketch11
pad10.setExpression("Length", "Params.pad10_length")
pad10.Reversed = True
body11 = doc.addObject("PartDesign::Body", "Body010")

# Sketch on XZ plane
sketch12 = body11.newObject("Sketcher::SketchObject", "Sketch011")
sketch12.AttachmentSupport = (doc.getObject("XZ_Plane010"), [""])
sketch12.MapMode = "FlatFace"
sketch12.AttachmentOffset = App.Placement(App.Vector(0, 0, -172), App.Rotation())
add_polygon(sketch12, [(1776.702291, 944), (1776.702291, 629.333333), (1345.783521, 629.333333), (1345.783521, 944)])  # lines 0-3
sketch12.addConstraint(Sketcher.Constraint("Vertical", 0))
sketch12.addConstraint(Sketcher.Constraint("Horizontal", 1))
sketch12.addConstraint(Sketcher.Constraint("Vertical", 2))
sketch12.addConstraint(Sketcher.Constraint("Horizontal", 3))
sketch12.addConstraint(Sketcher.Constraint("DistanceY", -1, 1, 2, 2, 944.0))
sketch12.addConstraint(Sketcher.Constraint("DistanceX", 1, 2, 1, 1, 430.91877))
sketch12.addConstraint(Sketcher.Constraint("DistanceY", 0, 2, 0, 1, 314.666667))
sketch12.addConstraint(Sketcher.Constraint("DistanceX", -1, 1, 0, 2, 1776.702291))
pad11 = body11.newObject("PartDesign::Pad", "Pad010")
pad11.Profile = sketch12
pad11.setExpression("Length", "Params.pad11_length")
pad11.Reversed = True
body12 = doc.addObject("PartDesign::Body", "Body011")

# Sketch on XZ plane
sketch13 = body12.newObject("Sketcher::SketchObject", "Sketch012")
sketch13.AttachmentSupport = (doc.getObject("XZ_Plane011"), [""])
sketch13.MapMode = "FlatFace"
sketch13.AttachmentOffset = App.Placement(App.Vector(0, 0, -172), App.Rotation())
add_polygon(sketch13, [(1268.783521, 944), (1268.783521, 629.333333), (603.485812, 629.333333), (603.485812, 944)])  # lines 0-3
sketch13.addConstraint(Sketcher.Constraint("Vertical", 0))
sketch13.addConstraint(Sketcher.Constraint("Horizontal", 1))
sketch13.addConstraint(Sketcher.Constraint("Vertical", 2))
sketch13.addConstraint(Sketcher.Constraint("Horizontal", 3))
sketch13.addConstraint(Sketcher.Constraint("DistanceY", -1, 1, 2, 2, 944.0))
sketch13.addConstraint(Sketcher.Constraint("DistanceX", 1, 2, 1, 1, 665.297709))
sketch13.addConstraint(Sketcher.Constraint("DistanceY", 0, 2, 0, 1, 314.666667))
sketch13.addConstraint(Sketcher.Constraint("DistanceX", -1, 1, 0, 2, 1268.783521))
pad12 = body12.newObject("PartDesign::Pad", "Pad011")
pad12.Profile = sketch13
pad12.setExpression("Length", "Params.pad12_length")
pad12.Reversed = True
body13 = doc.addObject("PartDesign::Body", "Body012")

# Sketch on XZ plane
sketch14 = body13.newObject("Sketcher::SketchObject", "Sketch013")
sketch14.AttachmentSupport = (doc.getObject("XZ_Plane012"), [""])
sketch14.MapMode = "FlatFace"
sketch14.AttachmentOffset = App.Placement(App.Vector(0, 0, -172), App.Rotation())
add_polygon(sketch14, [(1651.702291, 330.666667), (1651.702291, 16), (1220.783521, 16), (1220.783521, 330.666667)])  # lines 0-3
sketch14.addConstraint(Sketcher.Constraint("Vertical", 0))
sketch14.addConstraint(Sketcher.Constraint("Horizontal", 1))
sketch14.addConstraint(Sketcher.Constraint("Vertical", 2))
sketch14.addConstraint(Sketcher.Constraint("Horizontal", 3))
sketch14.addConstraint(Sketcher.Constraint("DistanceY", -1, 1, 0, 2, 16.0))
sketch14.addConstraint(Sketcher.Constraint("DistanceX", 1, 2, 1, 1, 430.91877))
sketch14.addConstraint(Sketcher.Constraint("DistanceY", 0, 2, 0, 1, 314.666667))
sketch14.addConstraint(Sketcher.Constraint("DistanceX", -1, 1, 0, 2, 1651.702291))
pad13 = body13.newObject("PartDesign::Pad", "Pad012")
pad13.Profile = sketch14
pad13.setExpression("Length", "Params.pad13_length")
pad13.Reversed = True
body14 = doc.addObject("PartDesign::Body", "Body013")

# Sketch on XZ plane
sketch15 = body14.newObject("Sketcher::SketchObject", "Sketch014")
sketch15.AttachmentSupport = (doc.getObject("XZ_Plane013"), [""])
sketch15.MapMode = "FlatFace"
sketch15.AttachmentOffset = App.Placement(App.Vector(0, 0, -172), App.Rotation())
add_polygon(sketch15, [(526.485812, 637.333333), (526.485812, 322.666667), (101, 322.666667), (101, 637.333333)])  # lines 0-3
sketch15.addConstraint(Sketcher.Constraint("Vertical", 0))
sketch15.addConstraint(Sketcher.Constraint("Horizontal", 1))
sketch15.addConstraint(Sketcher.Constraint("Vertical", 2))
sketch15.addConstraint(Sketcher.Constraint("Horizontal", 3))
sketch15.addConstraint(Sketcher.Constraint("DistanceX", -1, 1, 1, 2, 101.0))
sketch15.addConstraint(Sketcher.Constraint("DistanceX", 1, 2, 1, 1, 425.485812))
sketch15.addConstraint(Sketcher.Constraint("DistanceY", 0, 2, 0, 1, 314.666667))
sketch15.addConstraint(Sketcher.Constraint("DistanceY", -1, 1, 0, 2, 322.666667))
pad14 = body14.newObject("PartDesign::Pad", "Pad013")
pad14.Profile = sketch15
pad14.setExpression("Length", "Params.pad14_length")
pad14.Reversed = True
body15 = doc.addObject("PartDesign::Body", "Body014")

# Sketch on XZ plane
sketch16 = body15.newObject("Sketcher::SketchObject", "Sketch015")
sketch16.AttachmentSupport = (doc.getObject("XZ_Plane014"), [""])
sketch16.MapMode = "FlatFace"
sketch16.AttachmentOffset = App.Placement(App.Vector(0, 0, -218), App.Rotation())
add_polygon(sketch16, [(2620, 960), (2620, 810), (0, 810), (0, 960)])  # lines 0-3
sketch16.addConstraint(Sketcher.Constraint("Vertical", 0))
sketch16.addConstraint(Sketcher.Constraint("Horizontal", 1))
sketch16.addConstraint(Sketcher.Constraint("Vertical", 2))
sketch16.addConstraint(Sketcher.Constraint("Horizontal", 3))
sketch16.addConstraint(Sketcher.Constraint("PointOnObject", 1, 2, -2))
sketch16.addConstraint(Sketcher.Constraint("DistanceX", 1, 2, 1, 1, 2620.0))
sketch16.addConstraint(Sketcher.Constraint("DistanceY", 0, 2, 0, 1, 150.0))
sketch16.addConstraint(Sketcher.Constraint("DistanceY", -1, 1, 0, 2, 810.0))
sketch16.setExpression("Constraints[9]", "Params.sketch16_width")
sketch16.setExpression("Constraints[10]", "Params.sketch16_height")
pad15 = body15.newObject("PartDesign::Pad", "Pad014")
pad15.Profile = sketch16
pad15.setExpression("Length", "Params.pad15_length")
body16 = doc.addObject("PartDesign::Body", "Body015")

# Sketch on XZ plane
sketch17 = body16.newObject("Sketcher::SketchObject", "Sketch016")
sketch17.AttachmentSupport = (doc.getObject("XZ_Plane015"), [""])
sketch17.MapMode = "FlatFace"
sketch17.AttachmentOffset = App.Placement(App.Vector(0, 0, -218), App.Rotation())
add_polygon(sketch17, [(2620, 200), (2620, 50), (0, 50), (0, 200)])  # lines 0-3
sketch17.addConstraint(Sketcher.Constraint("Vertical", 0))
sketch17.addConstraint(Sketcher.Constraint("Horizontal", 1))
sketch17.addConstraint(Sketcher.Constraint("Vertical", 2))
sketch17.addConstraint(Sketcher.Constraint("Horizontal", 3))
sketch17.addConstraint(Sketcher.Constraint("PointOnObject", 1, 2, -2))
sketch17.addConstraint(Sketcher.Constraint("DistanceX", 1, 2, 1, 1, 2620.0))
sketch17.addConstraint(Sketcher.Constraint("DistanceY", 0, 2, 0, 1, 150.0))
sketch17.addConstraint(Sketcher.Constraint("DistanceY", -1, 1, 0, 2, 50.0))
sketch17.setExpression("Constraints[9]", "Params.sketch17_width")
sketch17.setExpression("Constraints[10]", "Params.sketch17_height")
pad16 = body16.newObject("PartDesign::Pad", "Pad015")
pad16.Profile = sketch17
pad16.setExpression("Length", "Params.pad16_length")

doc.recompute()
